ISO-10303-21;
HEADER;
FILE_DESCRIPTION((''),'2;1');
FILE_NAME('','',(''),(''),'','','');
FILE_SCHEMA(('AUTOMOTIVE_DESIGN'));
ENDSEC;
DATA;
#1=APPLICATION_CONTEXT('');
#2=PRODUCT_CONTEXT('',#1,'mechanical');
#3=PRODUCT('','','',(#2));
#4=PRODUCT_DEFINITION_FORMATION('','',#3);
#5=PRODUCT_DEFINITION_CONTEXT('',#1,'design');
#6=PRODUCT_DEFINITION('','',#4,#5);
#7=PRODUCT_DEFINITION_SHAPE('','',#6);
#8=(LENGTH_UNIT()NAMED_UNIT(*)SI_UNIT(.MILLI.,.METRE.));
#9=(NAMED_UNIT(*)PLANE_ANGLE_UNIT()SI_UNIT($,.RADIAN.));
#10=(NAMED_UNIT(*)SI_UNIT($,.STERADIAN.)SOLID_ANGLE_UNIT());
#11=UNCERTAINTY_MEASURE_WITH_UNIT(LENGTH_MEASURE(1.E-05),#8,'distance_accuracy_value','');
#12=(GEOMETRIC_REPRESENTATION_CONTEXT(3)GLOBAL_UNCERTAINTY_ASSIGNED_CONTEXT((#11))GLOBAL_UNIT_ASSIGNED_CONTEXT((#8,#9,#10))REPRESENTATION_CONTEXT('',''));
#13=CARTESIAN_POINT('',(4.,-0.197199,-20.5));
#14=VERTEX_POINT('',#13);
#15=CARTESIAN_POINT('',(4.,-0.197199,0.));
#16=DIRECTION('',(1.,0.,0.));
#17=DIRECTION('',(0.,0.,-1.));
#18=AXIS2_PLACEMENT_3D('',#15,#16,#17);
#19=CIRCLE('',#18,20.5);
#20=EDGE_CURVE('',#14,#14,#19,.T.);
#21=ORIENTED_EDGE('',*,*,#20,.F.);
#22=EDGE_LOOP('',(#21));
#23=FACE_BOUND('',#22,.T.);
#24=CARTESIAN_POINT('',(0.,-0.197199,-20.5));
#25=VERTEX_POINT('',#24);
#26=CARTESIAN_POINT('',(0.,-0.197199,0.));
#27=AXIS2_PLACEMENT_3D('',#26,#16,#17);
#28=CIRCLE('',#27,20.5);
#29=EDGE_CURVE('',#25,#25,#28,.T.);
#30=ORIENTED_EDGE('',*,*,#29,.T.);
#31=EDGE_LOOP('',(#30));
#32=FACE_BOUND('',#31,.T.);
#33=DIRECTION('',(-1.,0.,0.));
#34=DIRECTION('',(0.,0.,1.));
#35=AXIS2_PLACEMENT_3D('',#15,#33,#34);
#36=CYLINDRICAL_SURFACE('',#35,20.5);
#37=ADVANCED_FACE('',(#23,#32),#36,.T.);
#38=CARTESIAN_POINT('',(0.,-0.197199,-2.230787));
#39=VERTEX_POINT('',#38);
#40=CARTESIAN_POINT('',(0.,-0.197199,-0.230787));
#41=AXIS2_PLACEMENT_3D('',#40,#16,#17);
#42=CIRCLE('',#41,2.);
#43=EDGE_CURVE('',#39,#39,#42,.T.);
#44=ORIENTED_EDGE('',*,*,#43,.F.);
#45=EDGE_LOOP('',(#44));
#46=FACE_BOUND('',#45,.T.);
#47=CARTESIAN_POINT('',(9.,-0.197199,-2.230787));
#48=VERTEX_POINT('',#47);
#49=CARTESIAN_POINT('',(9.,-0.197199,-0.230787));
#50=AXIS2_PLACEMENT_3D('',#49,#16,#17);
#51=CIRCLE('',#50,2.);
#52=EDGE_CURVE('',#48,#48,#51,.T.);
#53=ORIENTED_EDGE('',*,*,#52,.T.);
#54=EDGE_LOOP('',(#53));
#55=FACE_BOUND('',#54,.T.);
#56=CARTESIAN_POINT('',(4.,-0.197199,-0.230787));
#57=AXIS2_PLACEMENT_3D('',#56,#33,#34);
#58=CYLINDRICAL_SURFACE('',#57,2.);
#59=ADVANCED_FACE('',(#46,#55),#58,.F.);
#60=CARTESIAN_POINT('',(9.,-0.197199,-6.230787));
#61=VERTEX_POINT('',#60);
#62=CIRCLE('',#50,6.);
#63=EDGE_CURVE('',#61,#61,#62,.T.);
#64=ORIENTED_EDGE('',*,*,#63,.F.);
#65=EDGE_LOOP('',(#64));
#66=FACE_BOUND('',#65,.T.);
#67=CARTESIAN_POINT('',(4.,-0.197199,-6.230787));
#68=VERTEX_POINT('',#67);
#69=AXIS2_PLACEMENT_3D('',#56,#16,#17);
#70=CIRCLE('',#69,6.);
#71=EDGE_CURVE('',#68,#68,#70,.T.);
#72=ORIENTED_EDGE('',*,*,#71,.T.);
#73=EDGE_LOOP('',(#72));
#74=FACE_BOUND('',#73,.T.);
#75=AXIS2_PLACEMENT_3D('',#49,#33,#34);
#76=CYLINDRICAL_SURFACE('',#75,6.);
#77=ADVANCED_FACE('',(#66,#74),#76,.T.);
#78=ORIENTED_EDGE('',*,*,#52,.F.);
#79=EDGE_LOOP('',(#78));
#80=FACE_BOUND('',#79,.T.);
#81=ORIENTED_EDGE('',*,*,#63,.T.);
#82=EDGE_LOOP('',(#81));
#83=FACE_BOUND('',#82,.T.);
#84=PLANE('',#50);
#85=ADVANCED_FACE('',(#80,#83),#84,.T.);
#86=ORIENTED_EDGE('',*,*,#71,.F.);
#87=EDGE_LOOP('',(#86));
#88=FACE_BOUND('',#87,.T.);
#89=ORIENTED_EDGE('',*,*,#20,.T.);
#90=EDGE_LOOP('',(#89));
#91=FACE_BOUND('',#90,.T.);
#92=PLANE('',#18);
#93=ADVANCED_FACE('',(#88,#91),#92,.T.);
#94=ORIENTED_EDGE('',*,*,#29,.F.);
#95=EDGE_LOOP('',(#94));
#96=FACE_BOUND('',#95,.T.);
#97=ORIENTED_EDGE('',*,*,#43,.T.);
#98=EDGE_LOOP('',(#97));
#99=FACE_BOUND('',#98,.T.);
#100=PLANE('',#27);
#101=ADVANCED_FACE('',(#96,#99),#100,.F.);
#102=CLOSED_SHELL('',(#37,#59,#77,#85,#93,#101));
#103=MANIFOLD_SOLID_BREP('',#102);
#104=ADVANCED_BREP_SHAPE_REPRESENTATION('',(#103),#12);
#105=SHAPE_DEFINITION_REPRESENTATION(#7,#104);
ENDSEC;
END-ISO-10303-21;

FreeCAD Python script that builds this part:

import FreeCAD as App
import Part
import Sketcher
from FreeCAD import Vector
Q = App.Units.Quantity

doc = App.newDocument("Part")
body = doc.addObject("PartDesign::Body", "Body")

# Sketch on YZ plane
sketch1 = doc.addObject("Sketcher::SketchObject", "Sketch")
body.addObject(sketch1)
sketch1.AttachmentSupport = (doc.YZ_Plane, [""])
sketch1.MapMode = "FlatFace"
sketch1.addGeometry([
    Part.Circle(Vector(-0.2, 0, 0), Vector(0, 0, 1), 20.5),
    Part.Circle(Vector(-0.2, -0.2, 0), Vector(0, 0, 1), 2),
], False)
sketch1.addConstraint([
    Sketcher.Constraint("PointOnObject", 0, 3, -1),
    Sketcher.Constraint("Vertical", 0, 3, 1, 3),
    Sketcher.Constraint("Diameter", 0, Q("41 mm")),
    Sketcher.Constraint("Diameter", 1, Q("4 mm")),
    Sketcher.Constraint("DistanceX", 0, 3, -1, 1, Q("0.197199 mm")),
    Sketcher.Constraint("DistanceY", 1, 3, -1, 1, Q("0.230787 mm")),
])
pad1 = doc.addObject("PartDesign::Pad", "Pad")
body.addObject(pad1)
pad1.Profile = sketch1
pad1.Length = 4

# Sketch on YZ plane
sketch2 = doc.addObject("Sketcher::SketchObject", "Sketch001")
body.addObject(sketch2)
sketch2.AttachmentSupport = (doc.YZ_Plane, [""])
sketch2.MapMode = "FlatFace"
sketch2.AttachmentOffset = App.Placement(Vector(0, 0, 4), App.Rotation())
sketch2.addGeometry([
    Part.Circle(Vector(-0.2, -0.2, 0), Vector(0, 0, 1), 6),
    Part.Circle(Vector(-0.2, -0.2, 0), Vector(0, 0, 1), 2),
], False)
sketch2.addConstraint([
    Sketcher.Constraint("Coincident", 1, 3, 0, 3),
    Sketcher.Constraint("Diameter", 0, Q("12 mm")),
    Sketcher.Constraint("Diameter", 1, Q("4 mm")),
    Sketcher.Constraint("DistanceX", 0, 3, -1, 1, Q("0.197199 mm")),
    Sketcher.Constraint("DistanceY", 0, 3, -1, 1, Q("0.230787 mm")),
])
pad2 = doc.addObject("PartDesign::Pad", "Pad001")
body.addObject(pad2)
pad2.Profile = sketch2
pad2.Length = 5

doc.recompute()
